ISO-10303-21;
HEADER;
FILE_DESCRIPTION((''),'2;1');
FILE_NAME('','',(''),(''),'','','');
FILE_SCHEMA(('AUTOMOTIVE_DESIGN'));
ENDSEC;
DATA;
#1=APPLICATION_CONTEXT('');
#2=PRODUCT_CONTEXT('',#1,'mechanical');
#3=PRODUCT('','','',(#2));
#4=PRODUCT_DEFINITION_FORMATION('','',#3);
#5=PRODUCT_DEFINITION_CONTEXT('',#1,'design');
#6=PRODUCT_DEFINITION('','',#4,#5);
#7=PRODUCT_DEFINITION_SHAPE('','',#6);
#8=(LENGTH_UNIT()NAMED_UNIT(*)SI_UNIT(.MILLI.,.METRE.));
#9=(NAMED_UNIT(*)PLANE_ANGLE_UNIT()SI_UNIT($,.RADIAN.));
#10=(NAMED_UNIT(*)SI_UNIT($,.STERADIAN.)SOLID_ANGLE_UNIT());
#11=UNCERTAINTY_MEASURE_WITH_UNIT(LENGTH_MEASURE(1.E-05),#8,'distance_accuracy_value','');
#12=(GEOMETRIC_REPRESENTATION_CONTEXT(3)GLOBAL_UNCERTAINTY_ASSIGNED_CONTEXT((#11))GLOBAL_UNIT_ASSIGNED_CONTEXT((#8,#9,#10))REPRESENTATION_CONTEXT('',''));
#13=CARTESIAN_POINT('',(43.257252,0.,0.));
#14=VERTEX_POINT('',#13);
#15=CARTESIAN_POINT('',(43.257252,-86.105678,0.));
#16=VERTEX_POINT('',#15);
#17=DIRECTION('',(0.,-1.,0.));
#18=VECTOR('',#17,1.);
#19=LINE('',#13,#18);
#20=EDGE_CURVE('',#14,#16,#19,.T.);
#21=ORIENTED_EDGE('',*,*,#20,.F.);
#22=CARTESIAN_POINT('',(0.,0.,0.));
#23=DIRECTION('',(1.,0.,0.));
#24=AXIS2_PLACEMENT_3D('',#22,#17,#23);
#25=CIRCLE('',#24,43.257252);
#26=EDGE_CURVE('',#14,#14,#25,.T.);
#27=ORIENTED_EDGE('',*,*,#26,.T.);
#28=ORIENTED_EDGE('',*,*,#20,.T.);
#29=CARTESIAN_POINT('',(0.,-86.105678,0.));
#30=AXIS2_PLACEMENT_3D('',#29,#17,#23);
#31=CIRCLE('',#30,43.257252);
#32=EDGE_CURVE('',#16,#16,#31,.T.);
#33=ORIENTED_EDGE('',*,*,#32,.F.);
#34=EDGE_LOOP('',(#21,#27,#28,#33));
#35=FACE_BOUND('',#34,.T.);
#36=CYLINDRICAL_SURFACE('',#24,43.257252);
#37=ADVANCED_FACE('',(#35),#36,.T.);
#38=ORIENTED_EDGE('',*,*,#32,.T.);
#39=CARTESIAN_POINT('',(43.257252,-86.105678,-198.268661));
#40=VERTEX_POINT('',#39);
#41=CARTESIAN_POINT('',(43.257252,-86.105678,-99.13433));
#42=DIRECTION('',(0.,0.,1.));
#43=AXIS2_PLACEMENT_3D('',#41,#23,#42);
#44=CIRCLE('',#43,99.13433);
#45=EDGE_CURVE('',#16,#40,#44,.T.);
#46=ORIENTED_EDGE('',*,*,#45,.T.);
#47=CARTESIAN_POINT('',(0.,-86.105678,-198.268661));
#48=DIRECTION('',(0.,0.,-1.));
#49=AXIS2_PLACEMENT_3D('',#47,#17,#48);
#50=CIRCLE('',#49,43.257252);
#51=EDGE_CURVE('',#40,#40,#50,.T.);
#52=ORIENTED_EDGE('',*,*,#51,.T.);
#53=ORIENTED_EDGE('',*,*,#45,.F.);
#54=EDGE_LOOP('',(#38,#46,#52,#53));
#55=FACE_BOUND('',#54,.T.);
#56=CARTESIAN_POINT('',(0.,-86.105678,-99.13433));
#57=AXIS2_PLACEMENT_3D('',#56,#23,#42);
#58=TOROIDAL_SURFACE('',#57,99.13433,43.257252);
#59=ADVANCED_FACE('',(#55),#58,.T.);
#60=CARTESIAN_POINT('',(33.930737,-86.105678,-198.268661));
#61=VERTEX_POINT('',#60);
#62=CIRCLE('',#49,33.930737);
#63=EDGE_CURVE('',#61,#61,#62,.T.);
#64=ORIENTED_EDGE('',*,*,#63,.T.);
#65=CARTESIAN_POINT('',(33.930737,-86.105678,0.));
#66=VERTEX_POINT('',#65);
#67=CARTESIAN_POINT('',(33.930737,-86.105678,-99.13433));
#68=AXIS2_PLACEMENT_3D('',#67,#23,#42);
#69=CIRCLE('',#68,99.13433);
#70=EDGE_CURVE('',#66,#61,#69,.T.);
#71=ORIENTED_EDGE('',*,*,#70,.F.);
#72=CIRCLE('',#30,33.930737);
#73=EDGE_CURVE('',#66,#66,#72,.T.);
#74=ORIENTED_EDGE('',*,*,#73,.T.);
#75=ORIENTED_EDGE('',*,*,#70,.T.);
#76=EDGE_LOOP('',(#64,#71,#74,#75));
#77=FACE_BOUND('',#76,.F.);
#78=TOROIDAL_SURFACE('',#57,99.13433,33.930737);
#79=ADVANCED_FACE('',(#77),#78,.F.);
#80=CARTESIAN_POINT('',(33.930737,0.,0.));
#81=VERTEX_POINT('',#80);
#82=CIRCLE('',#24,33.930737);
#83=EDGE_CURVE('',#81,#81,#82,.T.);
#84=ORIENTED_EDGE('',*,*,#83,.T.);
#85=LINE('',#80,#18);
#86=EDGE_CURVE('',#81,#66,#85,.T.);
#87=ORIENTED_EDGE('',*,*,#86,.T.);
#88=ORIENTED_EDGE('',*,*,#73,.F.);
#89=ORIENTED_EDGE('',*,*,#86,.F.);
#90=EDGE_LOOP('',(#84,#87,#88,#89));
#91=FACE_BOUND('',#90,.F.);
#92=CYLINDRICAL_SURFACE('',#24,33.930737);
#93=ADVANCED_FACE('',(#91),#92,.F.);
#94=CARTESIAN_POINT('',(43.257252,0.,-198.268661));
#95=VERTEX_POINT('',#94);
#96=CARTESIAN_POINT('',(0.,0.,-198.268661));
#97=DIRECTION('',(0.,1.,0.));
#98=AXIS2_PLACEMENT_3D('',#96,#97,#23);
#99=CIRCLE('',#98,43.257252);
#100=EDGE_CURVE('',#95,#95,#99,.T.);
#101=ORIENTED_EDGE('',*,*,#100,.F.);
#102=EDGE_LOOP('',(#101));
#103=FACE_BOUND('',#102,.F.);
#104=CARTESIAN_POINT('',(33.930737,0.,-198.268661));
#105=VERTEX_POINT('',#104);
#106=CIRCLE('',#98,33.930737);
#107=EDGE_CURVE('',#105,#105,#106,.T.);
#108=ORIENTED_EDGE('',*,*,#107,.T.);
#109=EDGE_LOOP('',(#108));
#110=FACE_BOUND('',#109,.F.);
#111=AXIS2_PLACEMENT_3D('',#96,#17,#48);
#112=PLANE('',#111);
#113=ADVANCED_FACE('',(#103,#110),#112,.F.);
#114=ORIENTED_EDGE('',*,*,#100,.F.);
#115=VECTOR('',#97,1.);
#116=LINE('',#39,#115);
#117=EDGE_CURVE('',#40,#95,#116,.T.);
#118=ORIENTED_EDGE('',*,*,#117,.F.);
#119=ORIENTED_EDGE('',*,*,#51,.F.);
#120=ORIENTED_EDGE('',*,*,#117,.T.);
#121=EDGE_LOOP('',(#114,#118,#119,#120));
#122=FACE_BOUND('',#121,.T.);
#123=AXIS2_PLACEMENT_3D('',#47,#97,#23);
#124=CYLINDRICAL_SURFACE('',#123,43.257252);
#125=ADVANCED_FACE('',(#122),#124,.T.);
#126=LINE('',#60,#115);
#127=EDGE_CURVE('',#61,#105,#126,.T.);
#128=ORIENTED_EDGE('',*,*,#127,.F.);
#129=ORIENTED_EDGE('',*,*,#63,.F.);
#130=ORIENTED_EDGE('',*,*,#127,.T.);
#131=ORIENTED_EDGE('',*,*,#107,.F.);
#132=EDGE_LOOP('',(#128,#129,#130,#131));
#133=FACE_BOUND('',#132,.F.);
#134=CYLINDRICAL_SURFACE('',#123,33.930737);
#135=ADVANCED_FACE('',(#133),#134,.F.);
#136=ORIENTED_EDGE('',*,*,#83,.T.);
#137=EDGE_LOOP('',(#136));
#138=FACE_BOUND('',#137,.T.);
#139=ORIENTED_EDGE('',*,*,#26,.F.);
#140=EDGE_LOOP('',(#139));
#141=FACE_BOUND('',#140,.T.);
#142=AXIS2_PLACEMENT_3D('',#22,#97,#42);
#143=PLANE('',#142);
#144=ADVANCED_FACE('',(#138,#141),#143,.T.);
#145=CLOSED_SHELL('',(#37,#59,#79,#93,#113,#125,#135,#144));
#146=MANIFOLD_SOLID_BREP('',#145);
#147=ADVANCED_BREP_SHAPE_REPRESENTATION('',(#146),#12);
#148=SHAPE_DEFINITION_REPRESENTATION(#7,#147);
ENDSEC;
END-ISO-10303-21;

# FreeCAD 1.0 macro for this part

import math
import FreeCAD as App
import Part
import Sketcher
from FreeCAD import Vector
Q = App.Units.Quantity

doc = App.newDocument("Part")
body = doc.addObject("PartDesign::Body", "Body")

# Sketch on XZ plane
sketch1 = body.newObject("Sketcher::SketchObject", "Sketch")
sketch1.AttachmentSupport = (doc.getObject("XZ_Plane"), [""])
sketch1.MapMode = "FlatFace"
sketch1.addGeometry(Part.Circle(Vector(0, 0, 0), Vector(0, 0, 1), 43.257252), False)
sketch1.addGeometry(Part.Circle(Vector(0, 0, 0), Vector(0, 0, 1), 33.930737), False)
sketch1.addConstraint(Sketcher.Constraint("Coincident", 0, 3, -1, 1))
sketch1.addConstraint(Sketcher.Constraint("Coincident", 1, 3, -1, 1))
sketch1.addConstraint(Sketcher.Constraint("Diameter", 0, Q("86.514504 mm")))
sketch1.addConstraint(Sketcher.Constraint("Diameter", 1, Q("67.861473 mm")))

# Sketch on YZ plane
sketch2 = body.newObject("Sketcher::SketchObject", "Sketch001")
sketch2.AttachmentSupport = (doc.getObject("YZ_Plane"), [""])
sketch2.MapMode = "FlatFace"
sketch2.addGeometry(Part.LineSegment(Vector(0, 0, 0), Vector(-86.105678, 0, 0)), False)
sketch2.addGeometry(Part.ArcOfCircle(Part.Circle(Vector(-86.105678, -99.13433, 0), Vector(0, 0, 1), 99.13433), math.radians(90), math.radians(270)), False)
sketch2.addGeometry(Part.LineSegment(Vector(-86.105678, -198.268661, 0), Vector(0, -198.268661, 0)), False)
sketch2.addConstraint(Sketcher.Constraint("Tangent", 0, 2, 1, 1))
sketch2.addConstraint(Sketcher.Constraint("Tangent", 1, 2, 2, 1))
sketch2.addConstraint(Sketcher.Constraint("Horizontal", 0))
sketch2.addConstraint(Sketcher.Constraint("Horizontal", 2))
sketch2.addConstraint(Sketcher.Constraint("Coincident", 0, 1, -1, 1))
sketch2.addConstraint(Sketcher.Constraint("PointOnObject", 2, 2, -2))
sketch2.addConstraint(Sketcher.Constraint("Radius", 1, Q("99.13433 mm")))
sketch2.addConstraint(Sketcher.Constraint("DistanceX", 0, 2, 0, 1, Q("86.105678 mm")))
doc.recompute()

additivepipe = body.newObject("PartDesign::AdditivePipe", "AdditivePipe")
additivepipe.Profile = sketch1
additivepipe.Spine = (sketch2, ["Edge1", "Edge2", "Edge3"])

doc.recompute()
